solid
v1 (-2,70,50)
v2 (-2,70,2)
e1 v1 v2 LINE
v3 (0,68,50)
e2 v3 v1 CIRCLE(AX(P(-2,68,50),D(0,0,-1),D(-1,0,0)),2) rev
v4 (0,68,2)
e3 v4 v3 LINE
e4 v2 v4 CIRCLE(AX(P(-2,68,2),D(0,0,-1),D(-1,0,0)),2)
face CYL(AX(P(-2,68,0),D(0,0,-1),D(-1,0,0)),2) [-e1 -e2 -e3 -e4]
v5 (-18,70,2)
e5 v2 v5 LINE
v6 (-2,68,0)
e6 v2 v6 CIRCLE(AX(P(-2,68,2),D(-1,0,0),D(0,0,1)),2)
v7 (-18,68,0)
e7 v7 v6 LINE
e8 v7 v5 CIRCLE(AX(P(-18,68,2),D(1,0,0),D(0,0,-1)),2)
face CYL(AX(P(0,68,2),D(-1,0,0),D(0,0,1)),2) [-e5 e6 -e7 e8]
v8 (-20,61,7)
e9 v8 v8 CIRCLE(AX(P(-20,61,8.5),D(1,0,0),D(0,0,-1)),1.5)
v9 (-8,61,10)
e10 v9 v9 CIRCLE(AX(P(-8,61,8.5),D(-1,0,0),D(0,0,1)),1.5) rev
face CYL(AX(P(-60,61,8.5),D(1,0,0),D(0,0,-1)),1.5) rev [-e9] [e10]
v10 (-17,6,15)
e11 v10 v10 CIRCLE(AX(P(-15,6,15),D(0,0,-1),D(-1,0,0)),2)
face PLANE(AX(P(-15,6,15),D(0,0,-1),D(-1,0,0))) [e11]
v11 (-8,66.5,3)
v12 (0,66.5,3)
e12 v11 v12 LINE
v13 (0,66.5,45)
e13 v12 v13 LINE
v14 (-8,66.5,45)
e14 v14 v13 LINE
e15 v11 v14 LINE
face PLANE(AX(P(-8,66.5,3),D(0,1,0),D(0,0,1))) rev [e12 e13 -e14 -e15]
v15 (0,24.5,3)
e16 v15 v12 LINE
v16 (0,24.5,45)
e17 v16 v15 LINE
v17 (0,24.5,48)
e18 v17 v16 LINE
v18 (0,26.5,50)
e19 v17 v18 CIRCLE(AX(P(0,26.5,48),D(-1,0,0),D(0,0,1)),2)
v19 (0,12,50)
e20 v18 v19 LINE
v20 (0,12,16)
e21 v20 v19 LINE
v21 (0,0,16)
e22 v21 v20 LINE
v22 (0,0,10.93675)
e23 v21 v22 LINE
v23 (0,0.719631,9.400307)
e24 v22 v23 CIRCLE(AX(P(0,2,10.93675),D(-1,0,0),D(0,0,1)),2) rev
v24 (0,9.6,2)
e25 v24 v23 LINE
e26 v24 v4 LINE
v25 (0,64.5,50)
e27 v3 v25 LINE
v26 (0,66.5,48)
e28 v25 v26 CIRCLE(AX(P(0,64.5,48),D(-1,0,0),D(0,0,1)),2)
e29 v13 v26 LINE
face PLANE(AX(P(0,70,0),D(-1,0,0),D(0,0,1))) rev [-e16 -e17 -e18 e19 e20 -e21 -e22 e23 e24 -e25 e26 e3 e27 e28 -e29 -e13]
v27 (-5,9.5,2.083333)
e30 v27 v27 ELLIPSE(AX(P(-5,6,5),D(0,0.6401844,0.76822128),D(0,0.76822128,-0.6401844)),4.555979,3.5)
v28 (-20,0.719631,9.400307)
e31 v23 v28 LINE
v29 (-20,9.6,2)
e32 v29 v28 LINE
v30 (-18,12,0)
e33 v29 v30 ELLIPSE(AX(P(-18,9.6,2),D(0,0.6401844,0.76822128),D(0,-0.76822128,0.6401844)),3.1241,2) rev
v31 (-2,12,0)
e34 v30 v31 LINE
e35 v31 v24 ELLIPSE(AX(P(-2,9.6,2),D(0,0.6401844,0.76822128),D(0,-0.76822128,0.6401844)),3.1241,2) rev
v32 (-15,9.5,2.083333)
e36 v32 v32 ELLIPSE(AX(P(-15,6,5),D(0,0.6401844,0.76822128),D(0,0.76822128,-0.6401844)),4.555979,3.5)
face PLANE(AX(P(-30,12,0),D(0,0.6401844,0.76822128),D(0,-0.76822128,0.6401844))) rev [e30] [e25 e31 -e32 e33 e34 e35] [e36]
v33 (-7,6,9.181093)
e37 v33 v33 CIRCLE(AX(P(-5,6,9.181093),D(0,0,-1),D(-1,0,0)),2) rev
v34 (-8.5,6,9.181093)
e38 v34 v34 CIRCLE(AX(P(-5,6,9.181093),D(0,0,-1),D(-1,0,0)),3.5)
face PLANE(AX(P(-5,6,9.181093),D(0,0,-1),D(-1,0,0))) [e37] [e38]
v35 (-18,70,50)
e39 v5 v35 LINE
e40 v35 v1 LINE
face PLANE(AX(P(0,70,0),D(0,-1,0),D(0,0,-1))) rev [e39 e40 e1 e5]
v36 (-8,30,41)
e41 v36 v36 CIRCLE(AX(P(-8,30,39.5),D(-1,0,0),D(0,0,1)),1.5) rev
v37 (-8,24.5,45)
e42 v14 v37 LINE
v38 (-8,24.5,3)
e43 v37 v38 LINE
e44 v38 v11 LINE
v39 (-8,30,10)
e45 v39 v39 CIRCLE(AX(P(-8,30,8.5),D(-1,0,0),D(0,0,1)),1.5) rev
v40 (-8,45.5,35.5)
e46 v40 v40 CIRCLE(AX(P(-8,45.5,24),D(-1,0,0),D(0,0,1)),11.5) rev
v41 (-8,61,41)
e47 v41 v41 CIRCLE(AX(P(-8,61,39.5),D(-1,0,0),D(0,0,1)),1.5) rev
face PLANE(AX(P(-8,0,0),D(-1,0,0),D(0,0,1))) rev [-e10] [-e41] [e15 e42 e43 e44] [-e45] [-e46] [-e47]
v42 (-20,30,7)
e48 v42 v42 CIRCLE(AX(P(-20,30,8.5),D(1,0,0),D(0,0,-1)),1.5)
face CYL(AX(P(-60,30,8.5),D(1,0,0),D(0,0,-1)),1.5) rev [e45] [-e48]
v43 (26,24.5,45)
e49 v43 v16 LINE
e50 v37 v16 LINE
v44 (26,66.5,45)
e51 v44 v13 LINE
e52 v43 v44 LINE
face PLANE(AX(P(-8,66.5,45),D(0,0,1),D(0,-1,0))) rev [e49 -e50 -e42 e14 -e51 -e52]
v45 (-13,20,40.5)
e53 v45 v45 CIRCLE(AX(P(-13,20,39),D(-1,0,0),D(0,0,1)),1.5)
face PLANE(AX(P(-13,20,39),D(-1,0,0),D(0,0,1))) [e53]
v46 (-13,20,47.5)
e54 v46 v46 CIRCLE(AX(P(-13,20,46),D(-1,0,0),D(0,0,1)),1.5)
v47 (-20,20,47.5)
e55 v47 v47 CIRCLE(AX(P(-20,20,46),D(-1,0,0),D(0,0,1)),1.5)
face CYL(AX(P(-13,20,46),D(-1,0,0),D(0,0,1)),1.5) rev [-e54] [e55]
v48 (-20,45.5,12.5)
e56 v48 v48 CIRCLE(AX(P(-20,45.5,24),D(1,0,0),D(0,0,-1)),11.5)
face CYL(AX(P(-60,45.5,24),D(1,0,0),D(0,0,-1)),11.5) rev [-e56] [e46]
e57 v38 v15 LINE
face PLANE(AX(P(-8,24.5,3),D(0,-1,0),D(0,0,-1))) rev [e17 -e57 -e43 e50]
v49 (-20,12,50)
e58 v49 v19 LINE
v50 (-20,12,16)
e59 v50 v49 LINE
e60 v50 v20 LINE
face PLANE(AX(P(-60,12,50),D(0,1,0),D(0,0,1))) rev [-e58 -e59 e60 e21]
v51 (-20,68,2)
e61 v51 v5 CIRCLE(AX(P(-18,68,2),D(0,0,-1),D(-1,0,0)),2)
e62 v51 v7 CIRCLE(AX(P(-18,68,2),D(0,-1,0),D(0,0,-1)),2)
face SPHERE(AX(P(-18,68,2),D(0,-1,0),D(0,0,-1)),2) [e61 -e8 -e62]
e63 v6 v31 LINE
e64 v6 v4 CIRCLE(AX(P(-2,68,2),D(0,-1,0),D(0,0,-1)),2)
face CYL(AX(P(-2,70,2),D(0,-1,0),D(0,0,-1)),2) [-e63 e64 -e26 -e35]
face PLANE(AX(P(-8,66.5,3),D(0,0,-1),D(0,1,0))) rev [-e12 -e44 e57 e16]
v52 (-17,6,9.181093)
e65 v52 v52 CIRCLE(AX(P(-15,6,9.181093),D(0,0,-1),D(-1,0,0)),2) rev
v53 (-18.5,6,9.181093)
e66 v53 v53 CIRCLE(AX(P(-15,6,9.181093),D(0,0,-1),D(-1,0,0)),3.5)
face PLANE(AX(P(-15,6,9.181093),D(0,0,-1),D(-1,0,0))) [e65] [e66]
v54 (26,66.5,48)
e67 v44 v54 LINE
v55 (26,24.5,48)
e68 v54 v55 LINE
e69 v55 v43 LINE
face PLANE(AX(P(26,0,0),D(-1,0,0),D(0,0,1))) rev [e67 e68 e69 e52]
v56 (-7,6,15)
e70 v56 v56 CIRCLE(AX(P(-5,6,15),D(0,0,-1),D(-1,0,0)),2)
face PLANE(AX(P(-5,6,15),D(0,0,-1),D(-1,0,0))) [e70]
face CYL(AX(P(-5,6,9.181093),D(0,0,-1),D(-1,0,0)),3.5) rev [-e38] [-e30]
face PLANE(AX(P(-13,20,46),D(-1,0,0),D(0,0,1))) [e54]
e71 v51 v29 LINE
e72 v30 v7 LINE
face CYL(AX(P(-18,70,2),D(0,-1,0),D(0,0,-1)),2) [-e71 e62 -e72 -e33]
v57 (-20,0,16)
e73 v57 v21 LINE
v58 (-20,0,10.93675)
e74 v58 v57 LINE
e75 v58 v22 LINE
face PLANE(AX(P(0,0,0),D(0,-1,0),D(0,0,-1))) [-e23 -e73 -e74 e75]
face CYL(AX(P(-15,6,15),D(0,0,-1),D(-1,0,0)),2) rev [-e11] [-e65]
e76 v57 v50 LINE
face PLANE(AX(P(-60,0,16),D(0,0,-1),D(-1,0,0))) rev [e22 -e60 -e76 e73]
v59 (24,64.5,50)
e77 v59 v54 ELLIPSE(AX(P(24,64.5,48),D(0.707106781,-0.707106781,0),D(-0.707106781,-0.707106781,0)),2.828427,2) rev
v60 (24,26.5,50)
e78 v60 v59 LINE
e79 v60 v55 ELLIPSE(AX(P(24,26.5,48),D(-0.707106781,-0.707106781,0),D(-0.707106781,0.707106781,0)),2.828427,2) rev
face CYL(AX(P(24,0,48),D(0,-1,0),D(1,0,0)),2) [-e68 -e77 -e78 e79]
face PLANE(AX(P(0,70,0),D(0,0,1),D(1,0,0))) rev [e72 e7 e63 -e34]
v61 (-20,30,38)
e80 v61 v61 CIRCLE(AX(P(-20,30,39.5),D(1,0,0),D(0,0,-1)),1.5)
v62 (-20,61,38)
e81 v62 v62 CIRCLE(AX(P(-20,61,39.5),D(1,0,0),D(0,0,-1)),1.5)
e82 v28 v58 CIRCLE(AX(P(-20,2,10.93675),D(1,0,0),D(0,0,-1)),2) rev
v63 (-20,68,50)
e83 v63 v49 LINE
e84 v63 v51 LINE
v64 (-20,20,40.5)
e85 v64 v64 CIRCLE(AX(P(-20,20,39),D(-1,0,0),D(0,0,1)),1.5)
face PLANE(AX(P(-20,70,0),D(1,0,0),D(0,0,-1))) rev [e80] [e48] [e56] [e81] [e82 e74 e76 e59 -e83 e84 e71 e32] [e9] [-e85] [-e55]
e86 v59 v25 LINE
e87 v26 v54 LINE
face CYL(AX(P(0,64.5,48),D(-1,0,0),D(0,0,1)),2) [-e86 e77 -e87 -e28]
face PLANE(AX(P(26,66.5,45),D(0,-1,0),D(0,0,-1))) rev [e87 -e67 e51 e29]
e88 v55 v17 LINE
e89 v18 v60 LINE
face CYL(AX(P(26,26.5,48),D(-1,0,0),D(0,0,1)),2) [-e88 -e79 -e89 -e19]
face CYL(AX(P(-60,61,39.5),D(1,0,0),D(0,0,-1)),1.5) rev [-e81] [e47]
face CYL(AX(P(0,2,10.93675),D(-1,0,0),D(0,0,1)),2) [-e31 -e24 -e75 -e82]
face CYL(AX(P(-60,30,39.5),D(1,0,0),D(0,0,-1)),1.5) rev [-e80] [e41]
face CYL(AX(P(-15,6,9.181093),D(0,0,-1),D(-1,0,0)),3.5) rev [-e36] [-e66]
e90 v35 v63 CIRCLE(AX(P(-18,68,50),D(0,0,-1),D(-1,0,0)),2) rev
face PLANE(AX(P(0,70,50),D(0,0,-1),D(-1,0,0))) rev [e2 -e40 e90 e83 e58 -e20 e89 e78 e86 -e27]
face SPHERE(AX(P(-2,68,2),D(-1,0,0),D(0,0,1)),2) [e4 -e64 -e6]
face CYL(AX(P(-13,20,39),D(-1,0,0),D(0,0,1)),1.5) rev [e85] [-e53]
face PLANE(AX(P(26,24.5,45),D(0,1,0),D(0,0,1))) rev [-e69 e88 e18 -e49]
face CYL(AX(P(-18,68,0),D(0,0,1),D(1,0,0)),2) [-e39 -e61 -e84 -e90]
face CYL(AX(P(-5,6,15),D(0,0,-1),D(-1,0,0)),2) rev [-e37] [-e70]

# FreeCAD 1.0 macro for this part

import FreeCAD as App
import Part
import Sketcher
from FreeCAD import Vector


def edges_at(feature, points):
    """Names of the edges that pass closest to the given points."""
    edges = feature.Shape.Edges
    near = lambda p: min(range(len(edges)), key=lambda i: edges[i].distToShape(Part.Vertex(*p))[0])
    return sorted({f"Edge{near(p) + 1}" for p in points})

doc = App.newDocument("Part")
body = doc.addObject("PartDesign::Body", "Body")

# Sketch on XZ plane
sketch1 = body.newObject("Sketcher::SketchObject", "Sketch")
sketch1.AttachmentSupport = (doc.getObject("XZ_Plane"), [""])
sketch1.MapMode = "FlatFace"
sketch1.addGeometry(Part.LineSegment(Vector(-20, 0, 0), Vector(-20, 50, 0)), False)
sketch1.addGeometry(Part.LineSegment(Vector(-20, 50, 0), Vector(0, 50, 0)), False)
sketch1.addGeometry(Part.LineSegment(Vector(0, 50, 0), Vector(0, 0, 0)), False)
sketch1.addGeometry(Part.LineSegment(Vector(0, 0, 0), Vector(-20, 0, 0)), False)
sketch1.addConstraint(Sketcher.Constraint("Coincident", 0, 2, 1, 1))
sketch1.addConstraint(Sketcher.Constraint("Coincident", 1, 2, 2, 1))
sketch1.addConstraint(Sketcher.Constraint("Coincident", 2, 2, 3, 1))
sketch1.addConstraint(Sketcher.Constraint("Coincident", 3, 2, 0, 1))
sketch1.addConstraint(Sketcher.Constraint("Vertical", 0))
sketch1.addConstraint(Sketcher.Constraint("Horizontal", 1))
sketch1.addConstraint(Sketcher.Constraint("Vertical", 2))
sketch1.addConstraint(Sketcher.Constraint("Horizontal", 3))
sketch1.addConstraint(Sketcher.Constraint("Coincident", 2, 2, -1, 1))
sketch1.addConstraint(Sketcher.Constraint("DistanceX", 1, 1, 1, 2, 20.0))
sketch1.addConstraint(Sketcher.Constraint("DistanceY", 0, 1, 0, 2, 50.0))
pad1 = body.newObject("PartDesign::Pad", "Pad")
pad1.Profile = sketch1
pad1.Length = 70
pad1.Reversed = True

# Sketch on YZ plane
sketch2 = body.newObject("Sketcher::SketchObject", "Sketch001")
sketch2.AttachmentSupport = (doc.getObject("YZ_Plane"), [""])
sketch2.MapMode = "FlatFace"
sketch2.addGeometry(Part.Circle(Vector(61, 8.5, 0), Vector(0, 0, 1), 1.5), False)
sketch2.addGeometry(Part.Circle(Vector(45.5, 24, 0), Vector(0, 0, 1), 11.5), False)
sketch2.addGeometry(Part.Circle(Vector(30, 8.5, 0), Vector(0, 0, 1), 1.5), False)
sketch2.addGeometry(Part.Circle(Vector(30, 39.5, 0), Vector(0, 0, 1), 1.5), False)
sketch2.addGeometry(Part.Circle(Vector(61, 39.5, 0), Vector(0, 0, 1), 1.5), False)
sketch2.addConstraint(Sketcher.Constraint("Equal", 0, 2))
sketch2.addConstraint(Sketcher.Constraint("Equal", 2, 3))
sketch2.addConstraint(Sketcher.Constraint("Equal", 3, 4))
sketch2.addConstraint(Sketcher.Constraint("Horizontal", 0, 3, 2, 3))
sketch2.addConstraint(Sketcher.Constraint("Horizontal", 3, 3, 4, 3))
sketch2.addConstraint(Sketcher.Constraint("Vertical", 2, 3, 3, 3))
sketch2.addConstraint(Sketcher.Constraint("Vertical", 0, 3, 4, 3))
sketch2.addConstraint(Sketcher.Constraint("Diameter", 0, 3.0))
sketch2.addConstraint(Sketcher.Constraint("Diameter", 1, 23.0))
sketch2.addConstraint(Sketcher.Constraint("DistanceX", -1, 1, 0, 3, 61.0))
sketch2.addConstraint(Sketcher.Constraint("DistanceY", -1, 1, 1, 3, 24.0))
sketch2.addConstraint(Sketcher.Constraint("DistanceX", -1, 1, 2, 3, 30.0))
sketch2.addConstraint(Sketcher.Constraint("DistanceY", 2, 3, 3, 3, 31.0))
sketch2.addConstraint(Sketcher.Constraint("DistanceY", -1, 1, 0, 3, 8.5))
sketch2.addConstraint(Sketcher.Constraint("DistanceX", -1, 1, 1, 3, 45.5))
pocket1 = body.newObject("PartDesign::Pocket", "Pocket")
pocket1.Profile = sketch2
pocket1.Length = 60

# Sketch on YZ plane
sketch3 = body.newObject("Sketcher::SketchObject", "Sketch002")
sketch3.AttachmentSupport = (doc.getObject("YZ_Plane"), [""])
sketch3.MapMode = "FlatFace"
sketch3.addGeometry(Part.LineSegment(Vector(12, 50, 0), Vector(0, 50, 0)), False)
sketch3.addGeometry(Part.LineSegment(Vector(0, 50, 0), Vector(0, 16, 0)), False)
sketch3.addGeometry(Part.LineSegment(Vector(0, 16, 0), Vector(12, 16, 0)), False)
sketch3.addGeometry(Part.LineSegment(Vector(12, 16, 0), Vector(12, 50, 0)), False)
sketch3.addConstraint(Sketcher.Constraint("Coincident", 0, 2, 1, 1))
sketch3.addConstraint(Sketcher.Constraint("Coincident", 1, 2, 2, 1))
sketch3.addConstraint(Sketcher.Constraint("Coincident", 2, 2, 3, 1))
sketch3.addConstraint(Sketcher.Constraint("Coincident", 3, 2, 0, 1))
sketch3.addConstraint(Sketcher.Constraint("Horizontal", 0))
sketch3.addConstraint(Sketcher.Constraint("Vertical", 1))
sketch3.addConstraint(Sketcher.Constraint("Horizontal", 2))
sketch3.addConstraint(Sketcher.Constraint("Vertical", 3))
sketch3.addConstraint(Sketcher.Constraint("PointOnObject", 0, 2, -2))
sketch3.addConstraint(Sketcher.Constraint("DistanceX", 0, 2, 0, 1, 12.0))
sketch3.addConstraint(Sketcher.Constraint("DistanceY", 1, 2, 1, 1, 34.0))
sketch3.addConstraint(Sketcher.Constraint("DistanceY", -1, 1, 0, 2, 50.0))
pocket2 = body.newObject("PartDesign::Pocket", "Pocket001")
pocket2.Profile = sketch3
pocket2.Length = 60

# Sketch on XY plane
sketch4 = body.newObject("Sketcher::SketchObject", "Sketch003")
sketch4.AttachmentSupport = (doc.getObject("XY_Plane"), [""])
sketch4.MapMode = "FlatFace"
sketch4.addGeometry(Part.Circle(Vector(-15, 6, 0), Vector(0, 0, 1), 2), False)
sketch4.addGeometry(Part.Circle(Vector(-5, 6, 0), Vector(0, 0, 1), 2), False)
sketch4.addConstraint(Sketcher.Constraint("Equal", 0, 1))
sketch4.addConstraint(Sketcher.Constraint("Horizontal", 0, 3, 1, 3))
sketch4.addConstraint(Sketcher.Constraint("Diameter", 0, 4.0))
sketch4.addConstraint(Sketcher.Constraint("DistanceX", 0, 3, -1, 1, 15.0))
sketch4.addConstraint(Sketcher.Constraint("DistanceY", -1, 1, 0, 3, 6.0))
sketch4.addConstraint(Sketcher.Constraint("DistanceX", 1, 3, -1, 1, 5.0))
pocket3 = body.newObject("PartDesign::Pocket", "Pocket002")
pocket3.Profile = sketch4
pocket3.Length = 15
pocket3.Reversed = True

# Sketch on YZ plane
sketch5 = body.newObject("Sketcher::SketchObject", "Sketch004")
sketch5.AttachmentSupport = (doc.getObject("YZ_Plane"), [""])
sketch5.MapMode = "FlatFace"
sketch5.addGeometry(Part.LineSegment(Vector(66, 45, 0), Vector(24, 45, 0)), False)
sketch5.addGeometry(Part.LineSegment(Vector(24, 45, 0), Vector(24, 3, 0)), False)
sketch5.addGeometry(Part.LineSegment(Vector(24, 3, 0), Vector(66, 3, 0)), False)
sketch5.addGeometry(Part.LineSegment(Vector(66, 3, 0), Vector(66, 45, 0)), False)
sketch5.addConstraint(Sketcher.Constraint("Coincident", 0, 2, 1, 1))
sketch5.addConstraint(Sketcher.Constraint("Coincident", 1, 2, 2, 1))
sketch5.addConstraint(Sketcher.Constraint("Coincident", 2, 2, 3, 1))
sketch5.addConstraint(Sketcher.Constraint("Coincident", 3, 2, 0, 1))
sketch5.addConstraint(Sketcher.Constraint("Horizontal", 0))
sketch5.addConstraint(Sketcher.Constraint("Vertical", 1))
sketch5.addConstraint(Sketcher.Constraint("Horizontal", 2))
sketch5.addConstraint(Sketcher.Constraint("Vertical", 3))
sketch5.addConstraint(Sketcher.Constraint("Equal", 2, 1))
sketch5.addConstraint(Sketcher.Constraint("DistanceX", 0, 2, 0, 1, 42.0))
sketch5.addConstraint(Sketcher.Constraint("DistanceY", -1, 1, 0, 2, 45.0))
sketch5.addConstraint(Sketcher.Constraint("DistanceX", -1, 1, 0, 2, 24.5))
pocket4 = body.newObject("PartDesign::Pocket", "Pocket003")
pocket4.Profile = sketch5
pocket4.Length = 8

# Sketch on YZ plane
sketch6 = body.newObject("Sketcher::SketchObject", "Sketch005")
sketch6.AttachmentSupport = (doc.getObject("YZ_Plane"), [""])
sketch6.MapMode = "FlatFace"
sketch6.addGeometry(Part.LineSegment(Vector(0, 10, 0), Vector(0, 0, 0)), False)
sketch6.addGeometry(Part.LineSegment(Vector(0, 0, 0), Vector(12, 0, 0)), False)
sketch6.addGeometry(Part.LineSegment(Vector(12, 0, 0), Vector(0, 10, 0)), False)
sketch6.addConstraint(Sketcher.Constraint("Coincident", 0, 2, 1, 1))
sketch6.addConstraint(Sketcher.Constraint("Coincident", 1, 2, 2, 1))
sketch6.addConstraint(Sketcher.Constraint("Coincident", 2, 2, 0, 1))
sketch6.addConstraint(Sketcher.Constraint("Vertical", 0))
sketch6.addConstraint(Sketcher.Constraint("Horizontal", 1))
sketch6.addConstraint(Sketcher.Constraint("Coincident", 0, 2, -1, 1))
sketch6.addConstraint(Sketcher.Constraint("DistanceX", 1, 1, 1, 2, 12.0))
sketch6.addConstraint(Sketcher.Constraint("DistanceY", 0, 2, 0, 1, 10.0))
pocket5 = body.newObject("PartDesign::Pocket", "Pocket004")
pocket5.Profile = sketch6
pocket5.Length = 30

# Sketch on XY plane
sketch7 = body.newObject("Sketcher::SketchObject", "Sketch006")
sketch7.AttachmentSupport = (doc.getObject("XY_Plane"), [""])
sketch7.MapMode = "FlatFace"
sketch7.addGeometry(Part.Circle(Vector(-15, 6, 0), Vector(0, 0, 1), 3.5), False)
sketch7.addGeometry(Part.Circle(Vector(-5, 6, 0), Vector(0, 0, 1), 3.5), False)
sketch7.addConstraint(Sketcher.Constraint("Equal", 0, 1))
sketch7.addConstraint(Sketcher.Constraint("Horizontal", 0, 3, 1, 3))
sketch7.addConstraint(Sketcher.Constraint("Diameter", 0, 7.0))
sketch7.addConstraint(Sketcher.Constraint("DistanceX", 0, 3, -1, 1, 15.0))
sketch7.addConstraint(Sketcher.Constraint("DistanceY", -1, 1, 0, 3, 6.0))
sketch7.addConstraint(Sketcher.Constraint("DistanceX", 1, 3, -1, 1, 5.0))
pocket6 = body.newObject("PartDesign::Pocket", "Pocket005")
pocket6.Profile = sketch7
pocket6.Length = 9.181093
pocket6.Reversed = True

# Sketch on YZ plane
sketch8 = body.newObject("Sketcher::SketchObject", "Sketch007")
sketch8.AttachmentSupport = (doc.getObject("YZ_Plane"), [""])
sketch8.MapMode = "FlatFace"
sketch8.AttachmentOffset = App.Placement(Vector(0, 0, -20), App.Rotation())
sketch8.addGeometry(Part.Circle(Vector(20, 46, 0), Vector(0, 0, 1), 1.5), False)
sketch8.addGeometry(Part.Circle(Vector(20, 39, 0), Vector(0, 0, 1), 1.5), False)
sketch8.addConstraint(Sketcher.Constraint("Equal", 0, 1))
sketch8.addConstraint(Sketcher.Constraint("Vertical", 0, 3, 1, 3))
sketch8.addConstraint(Sketcher.Constraint("Diameter", 0, 3.0))
sketch8.addConstraint(Sketcher.Constraint("DistanceX", -1, 1, 0, 3, 20.0))
sketch8.addConstraint(Sketcher.Constraint("DistanceY", -1, 1, 0, 3, 46.0))
sketch8.addConstraint(Sketcher.Constraint("DistanceY", -1, 1, 1, 3, 39.0))
pocket7 = body.newObject("PartDesign::Pocket", "Pocket006")
pocket7.Profile = sketch8
pocket7.Length = 7
pocket7.Reversed = True
doc.recompute()

fillet = body.newObject("PartDesign::Fillet", "Fillet")
fillet.Base = (pocket7, edges_at(pocket7, [(-20, 41, 0)]))
fillet.Radius = 2
doc.recompute()

fillet2 = body.newObject("PartDesign::Fillet", "Fillet001")
fillet2.Base = (fillet, edges_at(fillet, [(-20, 70, 26), (-19.414, 70, 0.586), (-9, 70, 0)]))
fillet2.Radius = 2
doc.recompute()

fillet3 = body.newObject("PartDesign::Fillet", "Fillet002")
fillet3.Base = (fillet2, edges_at(fillet2, [(0, 40, 0), (0, 69.414, 0.586), (0, 70, 26)]))
fillet3.Radius = 2
doc.recompute()

fillet4 = body.newObject("PartDesign::Fillet", "Fillet003")
fillet4.Base = (fillet3, edges_at(fillet3, [(-10, 0, 10)]))
fillet4.Radius = 2

# Sketch on YZ plane
sketch9 = body.newObject("Sketcher::SketchObject", "Sketch008")
sketch9.AttachmentSupport = (doc.getObject("YZ_Plane"), [""])
sketch9.MapMode = "FlatFace"
sketch9.addGeometry(Part.LineSegment(Vector(66, 50, 0), Vector(24, 50, 0)), False)
sketch9.addGeometry(Part.LineSegment(Vector(24, 50, 0), Vector(24, 45, 0)), False)
sketch9.addGeometry(Part.LineSegment(Vector(24, 45, 0), Vector(66, 45, 0)), False)
sketch9.addGeometry(Part.LineSegment(Vector(66, 45, 0), Vector(66, 50, 0)), False)
sketch9.addConstraint(Sketcher.Constraint("Coincident", 0, 2, 1, 1))
sketch9.addConstraint(Sketcher.Constraint("Coincident", 1, 2, 2, 1))
sketch9.addConstraint(Sketcher.Constraint("Coincident", 2, 2, 3, 1))
sketch9.addConstraint(Sketcher.Constraint("Coincident", 3, 2, 0, 1))
sketch9.addConstraint(Sketcher.Constraint("Horizontal", 0))
sketch9.addConstraint(Sketcher.Constraint("Vertical", 1))
sketch9.addConstraint(Sketcher.Constraint("Horizontal", 2))
sketch9.addConstraint(Sketcher.Constraint("Vertical", 3))
sketch9.addConstraint(Sketcher.Constraint("DistanceX", 0, 2, 0, 1, 42.0))
sketch9.addConstraint(Sketcher.Constraint("DistanceY", 1, 2, 1, 1, 5.0))
sketch9.addConstraint(Sketcher.Constraint("DistanceY", -1, 1, 0, 2, 50.0))
sketch9.addConstraint(Sketcher.Constraint("DistanceX", -1, 1, 0, 2, 24.5))
pad2 = body.newObject("PartDesign::Pad", "Pad001")
pad2.Profile = sketch9
pad2.Length = 26
doc.recompute()

fillet5 = body.newObject("PartDesign::Fillet", "Fillet004")
fillet5.Base = (pad2, edges_at(pad2, [(13, 66.5, 50), (13, 24.5, 50), (26, 45.5, 50)]))
fillet5.Radius = 2

doc.recompute()
